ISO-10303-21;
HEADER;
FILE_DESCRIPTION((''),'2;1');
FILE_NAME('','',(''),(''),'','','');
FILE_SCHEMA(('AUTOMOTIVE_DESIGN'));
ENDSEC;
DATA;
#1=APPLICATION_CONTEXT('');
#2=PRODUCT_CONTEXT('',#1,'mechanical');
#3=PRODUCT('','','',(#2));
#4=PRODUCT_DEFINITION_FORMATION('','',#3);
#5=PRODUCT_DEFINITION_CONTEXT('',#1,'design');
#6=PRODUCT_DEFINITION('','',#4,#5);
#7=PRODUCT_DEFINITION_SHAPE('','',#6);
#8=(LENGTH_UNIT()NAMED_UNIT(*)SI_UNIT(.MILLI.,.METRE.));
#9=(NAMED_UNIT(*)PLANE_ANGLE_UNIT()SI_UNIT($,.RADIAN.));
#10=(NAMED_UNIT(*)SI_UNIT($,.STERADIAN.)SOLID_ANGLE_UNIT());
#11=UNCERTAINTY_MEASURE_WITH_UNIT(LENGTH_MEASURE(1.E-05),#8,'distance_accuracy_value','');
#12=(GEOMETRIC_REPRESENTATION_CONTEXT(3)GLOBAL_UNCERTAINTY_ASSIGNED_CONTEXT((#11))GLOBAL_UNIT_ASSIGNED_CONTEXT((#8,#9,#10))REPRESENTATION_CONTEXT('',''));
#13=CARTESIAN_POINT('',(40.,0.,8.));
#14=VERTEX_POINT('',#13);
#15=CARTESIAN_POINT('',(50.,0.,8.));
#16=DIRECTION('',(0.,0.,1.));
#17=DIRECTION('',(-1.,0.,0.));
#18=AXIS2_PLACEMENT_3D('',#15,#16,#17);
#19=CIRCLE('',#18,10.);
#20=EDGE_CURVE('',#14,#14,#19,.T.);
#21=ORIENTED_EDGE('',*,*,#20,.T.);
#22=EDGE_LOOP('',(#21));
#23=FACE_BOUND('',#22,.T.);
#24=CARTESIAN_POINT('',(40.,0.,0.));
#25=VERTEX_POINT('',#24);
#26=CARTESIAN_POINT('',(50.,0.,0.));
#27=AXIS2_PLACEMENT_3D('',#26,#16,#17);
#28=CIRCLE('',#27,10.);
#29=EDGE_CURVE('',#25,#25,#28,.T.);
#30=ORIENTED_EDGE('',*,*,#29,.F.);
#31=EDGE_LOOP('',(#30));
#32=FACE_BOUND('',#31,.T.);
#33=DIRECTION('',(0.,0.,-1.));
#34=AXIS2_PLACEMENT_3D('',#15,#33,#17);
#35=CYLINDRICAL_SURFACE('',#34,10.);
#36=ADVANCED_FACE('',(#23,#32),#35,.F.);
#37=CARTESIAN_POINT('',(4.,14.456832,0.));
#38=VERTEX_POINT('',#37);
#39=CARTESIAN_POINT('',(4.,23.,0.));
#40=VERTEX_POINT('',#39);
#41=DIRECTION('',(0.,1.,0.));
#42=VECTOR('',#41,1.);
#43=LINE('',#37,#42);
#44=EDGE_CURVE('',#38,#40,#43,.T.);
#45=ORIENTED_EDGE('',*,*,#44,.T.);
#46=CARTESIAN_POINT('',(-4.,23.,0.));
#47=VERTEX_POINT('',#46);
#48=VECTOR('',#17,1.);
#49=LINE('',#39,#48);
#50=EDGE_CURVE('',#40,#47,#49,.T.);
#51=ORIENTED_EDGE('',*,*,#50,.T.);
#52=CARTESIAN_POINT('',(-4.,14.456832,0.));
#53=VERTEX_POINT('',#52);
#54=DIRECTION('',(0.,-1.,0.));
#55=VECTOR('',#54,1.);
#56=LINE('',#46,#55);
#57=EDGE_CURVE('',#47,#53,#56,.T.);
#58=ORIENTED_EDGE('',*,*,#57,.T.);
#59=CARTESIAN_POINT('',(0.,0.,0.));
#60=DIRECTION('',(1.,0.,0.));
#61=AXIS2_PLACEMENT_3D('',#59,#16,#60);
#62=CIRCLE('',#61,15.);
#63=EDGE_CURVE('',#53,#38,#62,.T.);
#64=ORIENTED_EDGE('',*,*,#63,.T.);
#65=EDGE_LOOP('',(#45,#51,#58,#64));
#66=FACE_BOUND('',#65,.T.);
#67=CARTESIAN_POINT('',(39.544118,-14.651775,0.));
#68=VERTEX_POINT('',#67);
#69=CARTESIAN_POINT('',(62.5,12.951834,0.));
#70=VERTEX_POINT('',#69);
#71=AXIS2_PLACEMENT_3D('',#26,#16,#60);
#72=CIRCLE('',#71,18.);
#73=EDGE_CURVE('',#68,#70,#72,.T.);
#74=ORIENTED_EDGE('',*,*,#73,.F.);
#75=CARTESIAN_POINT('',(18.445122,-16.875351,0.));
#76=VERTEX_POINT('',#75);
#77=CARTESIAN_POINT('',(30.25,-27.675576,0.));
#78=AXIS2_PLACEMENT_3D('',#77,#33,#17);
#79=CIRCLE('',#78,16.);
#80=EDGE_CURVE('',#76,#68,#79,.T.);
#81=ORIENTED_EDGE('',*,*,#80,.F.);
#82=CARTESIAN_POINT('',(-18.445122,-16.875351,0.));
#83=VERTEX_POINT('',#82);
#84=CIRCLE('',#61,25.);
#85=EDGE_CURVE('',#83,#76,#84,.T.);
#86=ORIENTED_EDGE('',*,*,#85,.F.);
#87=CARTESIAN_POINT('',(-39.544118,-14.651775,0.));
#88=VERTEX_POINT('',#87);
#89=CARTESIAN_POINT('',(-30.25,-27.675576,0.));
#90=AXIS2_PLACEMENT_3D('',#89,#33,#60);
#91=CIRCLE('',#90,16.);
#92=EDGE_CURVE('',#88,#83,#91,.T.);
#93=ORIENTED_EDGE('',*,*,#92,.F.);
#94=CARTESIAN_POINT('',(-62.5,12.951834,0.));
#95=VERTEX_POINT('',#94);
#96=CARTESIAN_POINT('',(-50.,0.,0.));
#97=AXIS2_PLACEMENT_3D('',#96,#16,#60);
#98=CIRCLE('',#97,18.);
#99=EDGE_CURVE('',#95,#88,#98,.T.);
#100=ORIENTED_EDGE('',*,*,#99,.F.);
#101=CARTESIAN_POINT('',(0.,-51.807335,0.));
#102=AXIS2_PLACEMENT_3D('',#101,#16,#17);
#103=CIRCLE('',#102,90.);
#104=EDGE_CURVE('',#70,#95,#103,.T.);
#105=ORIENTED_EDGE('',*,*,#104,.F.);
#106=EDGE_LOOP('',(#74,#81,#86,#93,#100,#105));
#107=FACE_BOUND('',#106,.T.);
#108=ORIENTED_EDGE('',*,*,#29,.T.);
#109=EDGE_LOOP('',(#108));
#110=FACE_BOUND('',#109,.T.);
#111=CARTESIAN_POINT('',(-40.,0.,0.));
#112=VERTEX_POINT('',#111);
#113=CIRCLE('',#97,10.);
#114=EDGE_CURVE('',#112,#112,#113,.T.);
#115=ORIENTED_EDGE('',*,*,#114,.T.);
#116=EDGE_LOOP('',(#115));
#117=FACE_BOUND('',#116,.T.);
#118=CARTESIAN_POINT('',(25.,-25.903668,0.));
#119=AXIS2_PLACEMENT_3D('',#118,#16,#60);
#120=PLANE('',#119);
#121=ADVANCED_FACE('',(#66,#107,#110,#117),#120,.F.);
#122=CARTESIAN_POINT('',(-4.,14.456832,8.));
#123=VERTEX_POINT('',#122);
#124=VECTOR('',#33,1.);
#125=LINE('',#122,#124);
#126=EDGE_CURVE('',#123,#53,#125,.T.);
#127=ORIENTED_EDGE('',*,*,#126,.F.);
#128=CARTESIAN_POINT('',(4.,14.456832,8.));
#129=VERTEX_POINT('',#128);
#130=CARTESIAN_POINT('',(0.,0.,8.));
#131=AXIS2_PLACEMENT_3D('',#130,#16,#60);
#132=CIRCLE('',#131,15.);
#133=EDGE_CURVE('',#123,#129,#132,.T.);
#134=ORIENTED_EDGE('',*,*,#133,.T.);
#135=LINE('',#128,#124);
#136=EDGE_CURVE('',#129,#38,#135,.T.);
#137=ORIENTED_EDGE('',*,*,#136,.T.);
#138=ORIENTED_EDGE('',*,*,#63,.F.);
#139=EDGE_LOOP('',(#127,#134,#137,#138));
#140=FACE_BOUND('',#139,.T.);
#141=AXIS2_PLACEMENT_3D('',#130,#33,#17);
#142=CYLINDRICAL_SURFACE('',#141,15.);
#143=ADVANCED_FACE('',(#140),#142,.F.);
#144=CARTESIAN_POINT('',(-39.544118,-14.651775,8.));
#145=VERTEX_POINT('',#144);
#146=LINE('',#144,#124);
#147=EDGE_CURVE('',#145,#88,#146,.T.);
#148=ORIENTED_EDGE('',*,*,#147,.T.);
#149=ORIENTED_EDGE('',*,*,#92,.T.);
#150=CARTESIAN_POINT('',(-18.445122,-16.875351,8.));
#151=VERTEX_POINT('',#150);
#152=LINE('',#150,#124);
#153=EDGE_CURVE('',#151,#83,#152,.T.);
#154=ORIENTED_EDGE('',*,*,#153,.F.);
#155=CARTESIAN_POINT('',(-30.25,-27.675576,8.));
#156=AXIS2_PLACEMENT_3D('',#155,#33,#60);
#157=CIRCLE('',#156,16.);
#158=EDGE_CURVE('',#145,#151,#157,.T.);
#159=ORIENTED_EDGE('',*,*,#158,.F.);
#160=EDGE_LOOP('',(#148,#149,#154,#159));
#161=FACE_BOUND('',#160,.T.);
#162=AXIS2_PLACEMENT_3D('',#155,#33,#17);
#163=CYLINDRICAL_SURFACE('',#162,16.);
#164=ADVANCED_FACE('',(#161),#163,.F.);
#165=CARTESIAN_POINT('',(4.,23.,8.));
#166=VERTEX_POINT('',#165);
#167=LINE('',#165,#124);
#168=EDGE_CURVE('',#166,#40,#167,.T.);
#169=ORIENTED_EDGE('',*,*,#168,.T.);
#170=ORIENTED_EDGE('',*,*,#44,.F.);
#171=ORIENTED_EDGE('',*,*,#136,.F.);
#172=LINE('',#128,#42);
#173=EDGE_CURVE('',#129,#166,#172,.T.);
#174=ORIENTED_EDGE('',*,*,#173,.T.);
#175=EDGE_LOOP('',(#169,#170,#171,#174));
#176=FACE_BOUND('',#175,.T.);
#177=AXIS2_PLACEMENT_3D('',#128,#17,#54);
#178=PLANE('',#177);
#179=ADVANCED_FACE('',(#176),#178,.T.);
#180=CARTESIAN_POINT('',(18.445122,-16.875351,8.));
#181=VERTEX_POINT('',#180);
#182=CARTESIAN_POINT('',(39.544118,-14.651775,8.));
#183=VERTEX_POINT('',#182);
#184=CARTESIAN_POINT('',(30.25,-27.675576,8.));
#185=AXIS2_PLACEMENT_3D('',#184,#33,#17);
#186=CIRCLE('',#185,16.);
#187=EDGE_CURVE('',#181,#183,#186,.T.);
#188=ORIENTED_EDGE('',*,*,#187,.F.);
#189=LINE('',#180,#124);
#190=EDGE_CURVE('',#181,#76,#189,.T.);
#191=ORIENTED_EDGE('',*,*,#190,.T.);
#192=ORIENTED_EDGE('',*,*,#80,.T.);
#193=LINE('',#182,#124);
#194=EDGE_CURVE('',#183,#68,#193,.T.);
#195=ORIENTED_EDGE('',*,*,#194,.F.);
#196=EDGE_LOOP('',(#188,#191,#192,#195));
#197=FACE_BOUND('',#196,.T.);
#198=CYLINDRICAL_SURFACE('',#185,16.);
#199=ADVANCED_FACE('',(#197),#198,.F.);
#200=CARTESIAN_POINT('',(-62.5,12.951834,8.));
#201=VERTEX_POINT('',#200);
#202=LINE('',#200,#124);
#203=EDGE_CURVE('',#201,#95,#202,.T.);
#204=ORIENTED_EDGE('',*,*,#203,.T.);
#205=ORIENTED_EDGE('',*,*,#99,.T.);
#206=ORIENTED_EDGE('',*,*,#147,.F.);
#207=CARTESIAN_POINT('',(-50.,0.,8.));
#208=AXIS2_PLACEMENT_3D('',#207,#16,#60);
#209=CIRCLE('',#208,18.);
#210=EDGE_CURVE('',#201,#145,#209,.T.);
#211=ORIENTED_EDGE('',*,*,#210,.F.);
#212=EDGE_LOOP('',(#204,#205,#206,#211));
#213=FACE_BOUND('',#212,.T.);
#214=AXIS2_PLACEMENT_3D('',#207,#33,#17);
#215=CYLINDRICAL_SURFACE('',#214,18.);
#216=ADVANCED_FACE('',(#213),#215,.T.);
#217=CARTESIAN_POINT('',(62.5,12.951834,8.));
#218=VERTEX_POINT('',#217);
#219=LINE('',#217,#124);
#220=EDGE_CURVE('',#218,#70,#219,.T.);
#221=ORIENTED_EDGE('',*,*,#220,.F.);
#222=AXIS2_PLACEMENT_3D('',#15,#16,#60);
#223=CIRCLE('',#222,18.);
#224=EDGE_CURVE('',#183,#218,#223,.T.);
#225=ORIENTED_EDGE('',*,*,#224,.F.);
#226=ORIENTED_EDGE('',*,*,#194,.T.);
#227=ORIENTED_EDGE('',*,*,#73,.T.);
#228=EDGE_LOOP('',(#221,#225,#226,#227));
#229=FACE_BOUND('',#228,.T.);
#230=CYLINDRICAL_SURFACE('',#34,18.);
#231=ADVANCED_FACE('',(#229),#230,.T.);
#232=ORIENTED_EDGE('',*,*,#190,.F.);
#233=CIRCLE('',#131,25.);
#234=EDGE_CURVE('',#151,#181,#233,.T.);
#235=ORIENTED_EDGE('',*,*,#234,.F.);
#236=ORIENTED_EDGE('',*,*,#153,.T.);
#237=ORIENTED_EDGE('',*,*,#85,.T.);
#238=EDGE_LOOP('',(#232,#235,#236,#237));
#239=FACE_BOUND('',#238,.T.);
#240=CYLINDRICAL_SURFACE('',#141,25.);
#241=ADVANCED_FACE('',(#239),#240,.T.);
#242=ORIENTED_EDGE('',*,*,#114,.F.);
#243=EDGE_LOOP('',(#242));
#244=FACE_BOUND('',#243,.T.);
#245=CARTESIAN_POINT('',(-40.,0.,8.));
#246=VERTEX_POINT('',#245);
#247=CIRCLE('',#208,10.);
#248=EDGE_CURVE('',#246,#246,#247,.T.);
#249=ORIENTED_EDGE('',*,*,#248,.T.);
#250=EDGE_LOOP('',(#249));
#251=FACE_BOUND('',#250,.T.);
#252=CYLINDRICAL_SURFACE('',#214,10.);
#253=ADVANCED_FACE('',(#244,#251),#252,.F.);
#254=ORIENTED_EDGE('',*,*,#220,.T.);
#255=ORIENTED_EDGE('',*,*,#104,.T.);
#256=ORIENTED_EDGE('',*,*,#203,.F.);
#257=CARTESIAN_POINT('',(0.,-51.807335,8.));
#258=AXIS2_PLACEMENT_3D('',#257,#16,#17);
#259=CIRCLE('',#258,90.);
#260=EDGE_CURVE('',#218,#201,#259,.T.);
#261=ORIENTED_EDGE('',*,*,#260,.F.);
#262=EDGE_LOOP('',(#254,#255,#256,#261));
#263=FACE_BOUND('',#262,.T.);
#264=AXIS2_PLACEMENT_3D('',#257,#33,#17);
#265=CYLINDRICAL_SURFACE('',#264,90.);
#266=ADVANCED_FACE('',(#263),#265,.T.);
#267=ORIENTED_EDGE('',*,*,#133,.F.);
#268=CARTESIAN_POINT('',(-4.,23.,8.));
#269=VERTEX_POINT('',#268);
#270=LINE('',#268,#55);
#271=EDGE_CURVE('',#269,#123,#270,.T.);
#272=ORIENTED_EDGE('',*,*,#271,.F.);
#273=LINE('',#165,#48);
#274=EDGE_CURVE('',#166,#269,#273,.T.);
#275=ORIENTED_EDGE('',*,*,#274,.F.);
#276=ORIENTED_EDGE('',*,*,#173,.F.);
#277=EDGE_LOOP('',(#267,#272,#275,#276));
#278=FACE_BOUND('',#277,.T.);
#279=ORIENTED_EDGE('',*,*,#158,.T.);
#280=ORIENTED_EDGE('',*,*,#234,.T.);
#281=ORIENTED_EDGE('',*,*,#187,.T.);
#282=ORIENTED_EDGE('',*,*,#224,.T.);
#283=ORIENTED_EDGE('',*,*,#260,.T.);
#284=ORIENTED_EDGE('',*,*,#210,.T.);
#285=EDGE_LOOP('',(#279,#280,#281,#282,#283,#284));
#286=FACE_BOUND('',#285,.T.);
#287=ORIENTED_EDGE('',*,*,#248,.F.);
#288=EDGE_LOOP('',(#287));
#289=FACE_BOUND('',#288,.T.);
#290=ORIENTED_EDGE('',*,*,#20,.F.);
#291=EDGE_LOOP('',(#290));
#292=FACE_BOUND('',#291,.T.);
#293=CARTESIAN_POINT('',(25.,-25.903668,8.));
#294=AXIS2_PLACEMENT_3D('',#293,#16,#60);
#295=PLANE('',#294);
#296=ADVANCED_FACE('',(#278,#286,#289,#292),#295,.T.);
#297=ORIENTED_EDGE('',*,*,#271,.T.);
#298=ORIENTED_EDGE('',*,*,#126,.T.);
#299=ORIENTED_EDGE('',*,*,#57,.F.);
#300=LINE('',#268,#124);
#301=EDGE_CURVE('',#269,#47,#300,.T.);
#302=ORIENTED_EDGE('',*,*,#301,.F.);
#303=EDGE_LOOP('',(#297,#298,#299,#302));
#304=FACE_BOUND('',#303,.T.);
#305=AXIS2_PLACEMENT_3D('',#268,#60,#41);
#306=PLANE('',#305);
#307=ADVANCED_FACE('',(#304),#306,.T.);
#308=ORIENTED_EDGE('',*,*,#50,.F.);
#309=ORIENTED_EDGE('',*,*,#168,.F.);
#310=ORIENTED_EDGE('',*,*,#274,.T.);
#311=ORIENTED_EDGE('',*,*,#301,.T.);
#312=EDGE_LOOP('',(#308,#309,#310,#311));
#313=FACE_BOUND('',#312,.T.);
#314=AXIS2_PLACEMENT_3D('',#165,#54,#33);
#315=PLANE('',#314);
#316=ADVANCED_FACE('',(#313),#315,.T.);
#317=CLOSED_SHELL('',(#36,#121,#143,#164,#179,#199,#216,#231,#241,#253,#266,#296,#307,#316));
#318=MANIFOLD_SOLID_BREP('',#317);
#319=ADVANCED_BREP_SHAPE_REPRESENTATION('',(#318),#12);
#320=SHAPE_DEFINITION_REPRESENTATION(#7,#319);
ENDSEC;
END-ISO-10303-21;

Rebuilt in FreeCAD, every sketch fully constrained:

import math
import FreeCAD as App
import Part
import Sketcher
from FreeCAD import Vector

doc = App.newDocument("Part")
body = doc.addObject("PartDesign::Body", "Body")

# Sketch on XY plane
sketch1 = body.newObject("Sketcher::SketchObject", "Sketch")
sketch1.AttachmentSupport = (doc.getObject("XY_Plane"), [""])
sketch1.MapMode = "FlatFace"
sketch1.addGeometry([
    Part.ArcOfCircle(Part.Circle(Vector(0, -52, 0), Vector(0, 0, 1), 90), math.radians(46), math.radians(134)),  # 0
    Part.ArcOfCircle(Part.Circle(Vector(-50, 0, 0), Vector(0, 0, 1), 18), math.radians(134), math.radians(306)),  # 1
    Part.ArcOfCircle(Part.Circle(Vector(-30, -28, 0), Vector(0, 0, 1), 16), math.radians(42), math.radians(126)),  # 2
    Part.ArcOfCircle(Part.Circle(Vector(0, 0, 0), Vector(0, 0, 1), 25), math.radians(-138), math.radians(-42)),  # 3
    Part.ArcOfCircle(Part.Circle(Vector(30, -28, 0), Vector(0, 0, 1), 16), math.radians(54), math.radians(138)),  # 4
    Part.ArcOfCircle(Part.Circle(Vector(50, 0, 0), Vector(0, 0, 1), 18), math.radians(-126), math.radians(46)),  # 5
    Part.Circle(Vector(50, 0, 0), Vector(0, 0, 1), 10),  # 6
    Part.Circle(Vector(-50, 0, 0), Vector(0, 0, 1), 10),  # 7
    Part.ArcOfCircle(Part.Circle(Vector(0, 0, 0), Vector(0, 0, 1), 15), math.radians(105), math.radians(435)),  # 8
    Part.LineSegment(Vector(-4, 14, 0), Vector(-4, 23, 0)),  # 9
    Part.LineSegment(Vector(-4, 23, 0), Vector(4, 23, 0)),  # 10
    Part.LineSegment(Vector(4, 23, 0), Vector(4, 14, 0)),  # 11
], False)
sketch1.addConstraint([
    Sketcher.Constraint("Tangent", 0, 2, 1, 1),
    Sketcher.Constraint("Tangent", 1, 2, 2, 2),
    Sketcher.Constraint("Tangent", 2, 1, 3, 1),
    Sketcher.Constraint("Tangent", 3, 2, 4, 2),
    Sketcher.Constraint("Tangent", 4, 1, 5, 1),
    Sketcher.Constraint("Tangent", 5, 2, 0, 1),
    Sketcher.Constraint("Coincident", 8, 1, 9, 1),
    Sketcher.Constraint("Coincident", 9, 2, 10, 1),
    Sketcher.Constraint("Coincident", 10, 2, 11, 1),
    Sketcher.Constraint("Coincident", 11, 2, 8, 2),
    Sketcher.Constraint("Vertical", 9),
    Sketcher.Constraint("Horizontal", 10),
    Sketcher.Constraint("Vertical", 11),
    Sketcher.Constraint("Coincident", 3, 3, -1, 1),
    Sketcher.Constraint("Coincident", 8, 3, -1, 1),
    Sketcher.Constraint("Coincident", 6, 3, 5, 3),
    Sketcher.Constraint("Coincident", 7, 3, 1, 3),
    Sketcher.Constraint("Equal", 2, 4),
    Sketcher.Constraint("Equal", 1, 5),
    Sketcher.Constraint("Equal", 6, 7),
    Sketcher.Constraint("Symmetric", 1, 3, 5, 3, -1, 1),
    Sketcher.Constraint("PointOnObject", 0, 3, -2),
    Sketcher.Constraint("Horizontal", 8, 1, 11, 2),
    Sketcher.Constraint("Diameter", 6, 20.0),
    Sketcher.Constraint("Radius", 0, 90.0),
    Sketcher.Constraint("Radius", 1, 18.0),
    Sketcher.Constraint("Radius", 2, 16.0),
    Sketcher.Constraint("Radius", 3, 25.0),
    Sketcher.Constraint("Radius", 8, 15.0),
    Sketcher.Constraint("DistanceX", 10, 1, 10, 2, 8.0),
    Sketcher.Constraint("DistanceX", 1, 3, -1, 1, 50.0),
    Sketcher.Constraint("DistanceY", -1, 1, 9, 2, 23.0),
])
pad1 = body.newObject("PartDesign::Pad", "Pad")
pad1.Profile = sketch1
pad1.Length = 8

doc.recompute()
